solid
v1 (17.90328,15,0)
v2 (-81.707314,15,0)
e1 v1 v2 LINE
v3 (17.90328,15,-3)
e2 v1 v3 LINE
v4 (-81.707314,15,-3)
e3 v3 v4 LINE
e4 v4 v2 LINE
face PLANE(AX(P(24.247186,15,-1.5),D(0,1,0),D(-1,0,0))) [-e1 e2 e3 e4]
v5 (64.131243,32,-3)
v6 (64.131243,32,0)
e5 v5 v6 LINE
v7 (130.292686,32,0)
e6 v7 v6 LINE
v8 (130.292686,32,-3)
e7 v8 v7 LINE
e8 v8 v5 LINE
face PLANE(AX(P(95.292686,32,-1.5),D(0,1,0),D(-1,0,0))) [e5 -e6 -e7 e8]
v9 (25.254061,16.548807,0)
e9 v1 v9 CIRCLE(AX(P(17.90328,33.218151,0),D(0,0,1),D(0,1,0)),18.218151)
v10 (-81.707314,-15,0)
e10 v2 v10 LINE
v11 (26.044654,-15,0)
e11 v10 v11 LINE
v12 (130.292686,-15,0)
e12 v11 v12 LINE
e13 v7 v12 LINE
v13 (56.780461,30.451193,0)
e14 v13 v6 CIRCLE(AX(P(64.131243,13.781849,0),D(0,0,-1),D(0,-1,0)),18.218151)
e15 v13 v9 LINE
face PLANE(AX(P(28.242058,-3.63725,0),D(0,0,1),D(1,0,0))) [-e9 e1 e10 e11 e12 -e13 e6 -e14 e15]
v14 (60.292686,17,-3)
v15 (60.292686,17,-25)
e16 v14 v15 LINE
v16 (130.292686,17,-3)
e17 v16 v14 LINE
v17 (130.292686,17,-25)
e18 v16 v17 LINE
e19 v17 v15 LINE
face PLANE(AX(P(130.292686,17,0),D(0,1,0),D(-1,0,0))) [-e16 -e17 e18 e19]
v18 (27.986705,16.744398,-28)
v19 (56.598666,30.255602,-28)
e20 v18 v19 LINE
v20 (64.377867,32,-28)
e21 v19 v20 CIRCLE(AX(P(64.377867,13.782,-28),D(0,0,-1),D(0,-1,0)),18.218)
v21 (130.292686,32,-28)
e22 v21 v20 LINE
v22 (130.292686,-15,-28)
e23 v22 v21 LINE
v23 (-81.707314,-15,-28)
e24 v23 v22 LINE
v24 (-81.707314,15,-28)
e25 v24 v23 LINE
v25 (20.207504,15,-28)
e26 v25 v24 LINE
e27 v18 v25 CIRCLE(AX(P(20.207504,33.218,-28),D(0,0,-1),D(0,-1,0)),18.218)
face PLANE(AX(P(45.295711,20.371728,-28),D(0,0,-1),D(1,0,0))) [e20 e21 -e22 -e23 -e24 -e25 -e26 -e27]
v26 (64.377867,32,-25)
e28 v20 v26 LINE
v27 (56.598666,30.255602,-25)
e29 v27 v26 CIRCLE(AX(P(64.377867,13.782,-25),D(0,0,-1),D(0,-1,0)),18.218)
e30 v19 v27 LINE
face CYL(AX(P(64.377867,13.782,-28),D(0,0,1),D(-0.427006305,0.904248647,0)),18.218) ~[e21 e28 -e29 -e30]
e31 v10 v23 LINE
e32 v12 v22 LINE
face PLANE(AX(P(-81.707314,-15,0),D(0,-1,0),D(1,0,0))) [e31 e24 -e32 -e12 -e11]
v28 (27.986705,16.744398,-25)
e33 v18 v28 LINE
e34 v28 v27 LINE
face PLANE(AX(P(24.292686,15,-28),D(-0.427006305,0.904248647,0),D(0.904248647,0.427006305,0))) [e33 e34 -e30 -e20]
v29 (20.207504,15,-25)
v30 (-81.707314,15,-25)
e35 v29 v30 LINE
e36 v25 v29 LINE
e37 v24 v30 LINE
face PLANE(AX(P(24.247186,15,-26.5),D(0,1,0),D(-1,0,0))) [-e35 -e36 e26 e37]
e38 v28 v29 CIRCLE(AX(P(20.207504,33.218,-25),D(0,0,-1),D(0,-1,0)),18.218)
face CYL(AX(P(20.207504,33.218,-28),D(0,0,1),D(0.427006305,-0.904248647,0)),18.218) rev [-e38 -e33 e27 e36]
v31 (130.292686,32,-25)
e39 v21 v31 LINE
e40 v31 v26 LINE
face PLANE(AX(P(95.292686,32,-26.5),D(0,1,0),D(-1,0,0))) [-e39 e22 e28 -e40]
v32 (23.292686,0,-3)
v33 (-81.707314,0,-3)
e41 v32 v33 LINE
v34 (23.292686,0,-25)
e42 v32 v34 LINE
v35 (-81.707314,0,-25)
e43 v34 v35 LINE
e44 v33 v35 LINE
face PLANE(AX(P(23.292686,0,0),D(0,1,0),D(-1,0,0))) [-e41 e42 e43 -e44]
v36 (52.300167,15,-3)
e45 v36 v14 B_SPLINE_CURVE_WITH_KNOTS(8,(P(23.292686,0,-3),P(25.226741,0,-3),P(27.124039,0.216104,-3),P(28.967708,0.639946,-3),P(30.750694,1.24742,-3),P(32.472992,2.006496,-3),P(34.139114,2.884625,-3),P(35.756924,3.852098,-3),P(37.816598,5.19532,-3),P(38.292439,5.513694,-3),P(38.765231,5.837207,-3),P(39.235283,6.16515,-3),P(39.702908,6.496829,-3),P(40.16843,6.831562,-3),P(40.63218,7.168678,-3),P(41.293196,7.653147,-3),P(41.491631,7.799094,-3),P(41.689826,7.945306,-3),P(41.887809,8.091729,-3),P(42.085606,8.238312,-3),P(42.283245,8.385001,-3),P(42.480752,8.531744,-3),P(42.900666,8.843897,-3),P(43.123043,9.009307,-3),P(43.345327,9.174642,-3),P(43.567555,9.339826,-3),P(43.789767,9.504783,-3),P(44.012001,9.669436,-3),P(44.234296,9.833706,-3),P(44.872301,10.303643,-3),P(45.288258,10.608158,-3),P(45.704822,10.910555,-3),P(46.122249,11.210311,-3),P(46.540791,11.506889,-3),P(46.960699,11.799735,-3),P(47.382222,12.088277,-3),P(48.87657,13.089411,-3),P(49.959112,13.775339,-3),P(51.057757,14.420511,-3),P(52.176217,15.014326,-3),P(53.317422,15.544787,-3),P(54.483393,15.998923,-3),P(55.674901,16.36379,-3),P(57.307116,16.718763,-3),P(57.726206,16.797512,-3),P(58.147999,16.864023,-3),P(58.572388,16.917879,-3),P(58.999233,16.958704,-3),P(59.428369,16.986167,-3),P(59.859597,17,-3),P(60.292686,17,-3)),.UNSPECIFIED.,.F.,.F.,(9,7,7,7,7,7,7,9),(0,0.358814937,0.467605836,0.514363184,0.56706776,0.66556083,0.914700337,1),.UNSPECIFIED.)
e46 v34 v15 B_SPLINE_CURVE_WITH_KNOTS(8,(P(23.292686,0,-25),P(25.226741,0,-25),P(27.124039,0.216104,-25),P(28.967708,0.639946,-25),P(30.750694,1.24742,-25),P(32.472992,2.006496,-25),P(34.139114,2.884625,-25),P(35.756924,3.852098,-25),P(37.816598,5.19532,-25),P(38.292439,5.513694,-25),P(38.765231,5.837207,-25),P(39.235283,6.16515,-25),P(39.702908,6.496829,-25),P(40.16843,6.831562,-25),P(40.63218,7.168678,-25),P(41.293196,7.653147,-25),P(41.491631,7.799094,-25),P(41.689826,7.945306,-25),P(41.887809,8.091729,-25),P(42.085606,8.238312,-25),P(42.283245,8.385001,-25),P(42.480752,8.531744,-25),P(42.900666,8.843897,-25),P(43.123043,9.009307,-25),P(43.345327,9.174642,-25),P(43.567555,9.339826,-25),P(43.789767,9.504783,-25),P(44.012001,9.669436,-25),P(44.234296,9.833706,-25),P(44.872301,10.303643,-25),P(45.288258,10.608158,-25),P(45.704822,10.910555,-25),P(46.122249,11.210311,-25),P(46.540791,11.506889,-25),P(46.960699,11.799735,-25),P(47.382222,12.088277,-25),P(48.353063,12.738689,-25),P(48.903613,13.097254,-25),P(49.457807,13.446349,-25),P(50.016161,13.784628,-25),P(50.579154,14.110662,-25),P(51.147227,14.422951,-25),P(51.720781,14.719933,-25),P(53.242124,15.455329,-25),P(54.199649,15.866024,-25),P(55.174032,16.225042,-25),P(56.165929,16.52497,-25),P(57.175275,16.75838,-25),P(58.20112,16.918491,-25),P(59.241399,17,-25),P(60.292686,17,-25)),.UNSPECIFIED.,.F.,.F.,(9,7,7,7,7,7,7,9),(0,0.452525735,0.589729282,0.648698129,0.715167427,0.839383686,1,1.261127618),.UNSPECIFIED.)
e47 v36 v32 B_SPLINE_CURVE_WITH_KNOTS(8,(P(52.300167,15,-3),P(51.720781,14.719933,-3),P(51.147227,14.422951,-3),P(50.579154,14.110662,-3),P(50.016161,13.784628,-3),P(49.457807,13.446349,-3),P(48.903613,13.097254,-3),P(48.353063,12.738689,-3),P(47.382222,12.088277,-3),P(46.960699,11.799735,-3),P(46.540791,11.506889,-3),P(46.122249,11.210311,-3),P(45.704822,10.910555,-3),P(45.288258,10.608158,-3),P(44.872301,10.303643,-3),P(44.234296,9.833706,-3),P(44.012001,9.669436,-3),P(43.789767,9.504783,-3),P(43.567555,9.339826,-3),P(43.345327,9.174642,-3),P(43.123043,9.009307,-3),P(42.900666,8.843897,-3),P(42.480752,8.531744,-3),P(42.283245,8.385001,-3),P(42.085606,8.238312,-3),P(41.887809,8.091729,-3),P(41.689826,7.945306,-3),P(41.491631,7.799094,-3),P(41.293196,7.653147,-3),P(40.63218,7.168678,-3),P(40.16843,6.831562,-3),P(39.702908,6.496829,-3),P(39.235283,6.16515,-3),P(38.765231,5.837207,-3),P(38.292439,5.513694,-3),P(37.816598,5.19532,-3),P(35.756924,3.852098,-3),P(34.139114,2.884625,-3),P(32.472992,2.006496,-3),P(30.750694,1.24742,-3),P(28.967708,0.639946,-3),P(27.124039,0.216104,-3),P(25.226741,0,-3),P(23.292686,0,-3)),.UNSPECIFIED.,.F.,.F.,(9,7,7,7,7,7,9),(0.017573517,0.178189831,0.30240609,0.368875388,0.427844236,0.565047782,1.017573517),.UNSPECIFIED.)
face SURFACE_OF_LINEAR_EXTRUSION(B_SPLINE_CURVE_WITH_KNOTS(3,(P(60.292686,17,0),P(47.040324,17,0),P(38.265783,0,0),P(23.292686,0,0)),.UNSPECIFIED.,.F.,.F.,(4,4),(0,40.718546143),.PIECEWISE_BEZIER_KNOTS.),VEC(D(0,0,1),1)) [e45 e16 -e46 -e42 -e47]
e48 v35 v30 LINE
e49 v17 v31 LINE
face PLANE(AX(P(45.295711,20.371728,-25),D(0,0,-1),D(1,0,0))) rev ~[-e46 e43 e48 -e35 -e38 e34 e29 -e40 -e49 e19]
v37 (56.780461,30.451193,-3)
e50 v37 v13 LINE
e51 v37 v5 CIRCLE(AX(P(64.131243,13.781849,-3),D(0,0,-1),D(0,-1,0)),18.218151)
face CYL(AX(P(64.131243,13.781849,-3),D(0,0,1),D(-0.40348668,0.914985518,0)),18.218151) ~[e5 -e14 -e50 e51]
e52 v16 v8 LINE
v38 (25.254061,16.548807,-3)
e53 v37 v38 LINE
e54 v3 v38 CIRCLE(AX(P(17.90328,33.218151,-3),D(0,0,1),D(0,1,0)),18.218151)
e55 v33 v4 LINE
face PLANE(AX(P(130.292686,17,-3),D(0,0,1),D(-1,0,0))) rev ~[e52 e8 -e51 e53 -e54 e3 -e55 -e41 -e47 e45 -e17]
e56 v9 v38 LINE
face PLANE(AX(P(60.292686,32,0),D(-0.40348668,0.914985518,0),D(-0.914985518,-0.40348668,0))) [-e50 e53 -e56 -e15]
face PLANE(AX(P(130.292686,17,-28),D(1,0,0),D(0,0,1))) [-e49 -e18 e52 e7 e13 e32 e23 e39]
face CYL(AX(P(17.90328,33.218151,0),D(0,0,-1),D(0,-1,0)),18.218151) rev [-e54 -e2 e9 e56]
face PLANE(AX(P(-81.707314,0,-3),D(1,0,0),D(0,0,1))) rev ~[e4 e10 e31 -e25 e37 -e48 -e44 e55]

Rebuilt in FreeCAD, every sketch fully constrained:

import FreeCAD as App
import Part
import Sketcher
from FreeCAD import Vector


def edges_at(feature, points):
    """Names of the edges that pass closest to the given points."""
    edges = feature.Shape.Edges
    near = lambda p: min(range(len(edges)), key=lambda i: edges[i].distToShape(Part.Vertex(*p))[0])
    return sorted({f"Edge{near(p) + 1}" for p in points})

doc = App.newDocument("Part")
body = doc.addObject("PartDesign::Body", "Body")

sketch1 = body.newObject("Sketcher::SketchObject", "Sketch")
sketch1.AttachmentSupport = (doc.getObject("XY_Plane"), [""])
sketch1.MapMode = "FlatFace"
sketch1.addGeometry([
    Part.LineSegment(Vector(23.292686, 0, 0), Vector(-81.707314, 0, 0)),
    Part.LineSegment(Vector(-81.707314, 0, 0), Vector(-81.707314, -15, 0)),
    Part.LineSegment(Vector(-81.707314, -15, 0), Vector(130.292686, -15, 0)),
    Part.LineSegment(Vector(130.292686, -15, 0), Vector(130.292686, 17, 0)),
    Part.LineSegment(Vector(130.292686, 17, 0), Vector(60.292686, 17, 0)),
    Part.BSplineCurve([Vector(60.292686, 17, 0), Vector(47.040324, 17, 0), Vector(38.265783, 0, 0), Vector(23.292686, 0, 0)], [4, 4], [0, 40.718546143], False, 3, [1, 1, 1, 1], False),
], False)
sketch1.addConstraint([
    Sketcher.Constraint("Block", 5),
    Sketcher.Constraint("Coincident", 0, 2, 1, 1),
    Sketcher.Constraint("Coincident", 1, 2, 2, 1),
    Sketcher.Constraint("Coincident", 2, 2, 3, 1),
    Sketcher.Constraint("Coincident", 3, 2, 4, 1),
    Sketcher.Constraint("Coincident", 4, 2, 5, 1),
    Sketcher.Constraint("Coincident", 5, 2, 0, 1),
    Sketcher.Constraint("Horizontal", 0),
    Sketcher.Constraint("Vertical", 1),
    Sketcher.Constraint("Horizontal", 2),
    Sketcher.Constraint("Vertical", 3),
    Sketcher.Constraint("Horizontal", 4),
    Sketcher.Constraint("DistanceX", 0, 2, 0, 1, 105.0),
    Sketcher.Constraint("DistanceX", 2, 1, 2, 2, 212.0),
    Sketcher.Constraint("DistanceY", 1, 2, 1, 1, 15.0),
])
pad1 = body.newObject("PartDesign::Pad", "Pad")
pad1.Profile = sketch1
pad1.Length = 28
pad1.Reversed = True

sketch2 = body.newObject("Sketcher::SketchObject", "Sketch001")
sketch2.AttachmentSupport = (doc.getObject("XZ_Plane"), [""])
sketch2.MapMode = "FlatFace"
sketch2.addGeometry([
    Part.LineSegment(Vector(130.2, 0, 0), Vector(130.2, -3, 0)),
    Part.LineSegment(Vector(130.2, -3, 0), Vector(-81.7, -3, 0)),
    Part.LineSegment(Vector(-81.7, -3, 0), Vector(-81.7, 0, 0)),
    Part.LineSegment(Vector(-81.7, 0, 0), Vector(130.2, 0, 0)),
    Part.LineSegment(Vector(130.2, -25, 0), Vector(130.2, -28, 0)),
    Part.LineSegment(Vector(130.2, -28, 0), Vector(-81.7, -28, 0)),
    Part.LineSegment(Vector(-81.7, -28, 0), Vector(-81.7, -25, 0)),
    Part.LineSegment(Vector(-81.7, -25, 0), Vector(130.2, -25, 0)),
], False)
sketch2.addConstraint([
    Sketcher.Constraint("Coincident", 0, 2, 1, 1),
    Sketcher.Constraint("Coincident", 1, 2, 2, 1),
    Sketcher.Constraint("Coincident", 2, 2, 3, 1),
    Sketcher.Constraint("Coincident", 3, 2, 0, 1),
    Sketcher.Constraint("Coincident", 4, 2, 5, 1),
    Sketcher.Constraint("Coincident", 5, 2, 6, 1),
    Sketcher.Constraint("Coincident", 6, 2, 7, 1),
    Sketcher.Constraint("Coincident", 7, 2, 4, 1),
    Sketcher.Constraint("Vertical", 0),
    Sketcher.Constraint("Horizontal", 1),
    Sketcher.Constraint("Vertical", 2),
    Sketcher.Constraint("Horizontal", 3),
    Sketcher.Constraint("Vertical", 4),
    Sketcher.Constraint("Horizontal", 5),
    Sketcher.Constraint("Vertical", 6),
    Sketcher.Constraint("Horizontal", 7),
    Sketcher.Constraint("PointOnObject", 2, 2, -1),
    Sketcher.Constraint("Vertical", 3, 2, 4, 2),
    Sketcher.Constraint("Vertical", 2, 2, 5, 2),
    Sketcher.Constraint("Equal", 2, 4),
    Sketcher.Constraint("DistanceY", 0, 2, 0, 1, 3.0),
    Sketcher.Constraint("DistanceY", 4, 2, -1, 1, 28.0),
    Sketcher.Constraint("DistanceX", 1, 2, 1, 1, 211.909),
    Sketcher.Constraint("DistanceX", -1, 1, 0, 2, 130.201686),
])
pad2 = body.newObject("PartDesign::Pad", "Pad001")
pad2.Profile = sketch2
pad2.Length = 15
pad2.Reversed = True

sketch3 = body.newObject("Sketcher::SketchObject", "Sketch002")
sketch3.AttachmentSupport = (doc.getObject("XZ_Plane"), [""])
sketch3.MapMode = "FlatFace"
sketch3.AttachmentOffset = App.Placement(Vector(0, 0, -17), App.Rotation())
sketch3.addGeometry([
    Part.LineSegment(Vector(130.3, -25, 0), Vector(130.3, -28, 0)),
    Part.LineSegment(Vector(130.3, -28, 0), Vector(60.3, -28, 0)),
    Part.LineSegment(Vector(60.3, -28, 0), Vector(60.3, -25, 0)),
    Part.LineSegment(Vector(60.3, -25, 0), Vector(130.3, -25, 0)),
    Part.LineSegment(Vector(130.3, 0, 0), Vector(130.3, -3, 0)),
    Part.LineSegment(Vector(130.3, -3, 0), Vector(60.3, -3, 0)),
    Part.LineSegment(Vector(60.3, -3, 0), Vector(60.3, 0, 0)),
    Part.LineSegment(Vector(60.3, 0, 0), Vector(130.3, 0, 0)),
], False)
sketch3.addConstraint([
    Sketcher.Constraint("Coincident", 0, 2, 1, 1),
    Sketcher.Constraint("Coincident", 1, 2, 2, 1),
    Sketcher.Constraint("Coincident", 2, 2, 3, 1),
    Sketcher.Constraint("Coincident", 3, 2, 0, 1),
    Sketcher.Constraint("Coincident", 4, 2, 5, 1),
    Sketcher.Constraint("Coincident", 5, 2, 6, 1),
    Sketcher.Constraint("Coincident", 6, 2, 7, 1),
    Sketcher.Constraint("Coincident", 7, 2, 4, 1),
    Sketcher.Constraint("Vertical", 0),
    Sketcher.Constraint("Horizontal", 1),
    Sketcher.Constraint("Vertical", 2),
    Sketcher.Constraint("Horizontal", 3),
    Sketcher.Constraint("Vertical", 4),
    Sketcher.Constraint("Horizontal", 5),
    Sketcher.Constraint("Vertical", 6),
    Sketcher.Constraint("Horizontal", 7),
    Sketcher.Constraint("PointOnObject", 6, 2, -1),
    Sketcher.Constraint("Vertical", 3, 2, 4, 2),
    Sketcher.Constraint("Vertical", 2, 2, 5, 2),
    Sketcher.Constraint("Equal", 2, 4),
    Sketcher.Constraint("DistanceX", 1, 2, 1, 1, 70.0),
    Sketcher.Constraint("DistanceY", 0, 2, 0, 1, 3.0),
    Sketcher.Constraint("DistanceY", 0, 2, -1, 1, 28.0),
    Sketcher.Constraint("DistanceX", -1, 1, 0, 2, 130.292686),
])
pad3 = body.newObject("PartDesign::Pad", "Pad002")
pad3.Profile = sketch3
pad3.Length = 15
pad3.Reversed = True

sketch4 = body.newObject("Sketcher::SketchObject", "Sketch003")
sketch4.AttachmentSupport = (doc.getObject("XY_Plane"), [""])
sketch4.MapMode = "FlatFace"
sketch4.addGeometry([
    Part.LineSegment(Vector(65, 0, 0), Vector(60, 32, 0)),
    Part.LineSegment(Vector(60, 32, 0), Vector(22, 15, 0)),
    Part.LineSegment(Vector(22, 15, 0), Vector(26, -15, 0)),
    Part.LineSegment(Vector(26, -15, 0), Vector(65, 0, 0)),
], False)
sketch4.addConstraint([
    Sketcher.Constraint("Coincident", 0, 2, 1, 1),
    Sketcher.Constraint("Coincident", 1, 2, 2, 1),
    Sketcher.Constraint("Coincident", 2, 2, 3, 1),
    Sketcher.Constraint("Coincident", 3, 2, 0, 1),
    Sketcher.Constraint("PointOnObject", 3, 2, -1),
    Sketcher.Constraint("DistanceY", -1, 1, 0, 2, 32.0),
    Sketcher.Constraint("DistanceY", -1, 1, 1, 2, 15.0),
    Sketcher.Constraint("DistanceY", 2, 2, -1, 1, 15.0),
    Sketcher.Constraint("Distance", 2, 30.307),
    Sketcher.Constraint("Distance", 1, 42.132742),
    Sketcher.Constraint("DistanceX", 0, 2, 3, 2, 4.497831),
    Sketcher.Constraint("DistanceX", -1, 1, 0, 2, 60.292686),
])
pad4 = body.newObject("PartDesign::Pad", "Pad003")
pad4.Profile = sketch4
pad4.Length = 3
pad4.Reversed = True
doc.recompute()

fillet = body.newObject("PartDesign::Fillet", "Fillet")
fillet.Base = (pad4, edges_at(pad4, [(60.293, 32, -1.5), (21.742, 15, -1.5)]))
fillet.Radius = 18.218151

sketch5 = body.newObject("Sketcher::SketchObject", "Sketch004")
sketch5.AttachmentSupport = (doc.getObject("XY_Plane"), [""])
sketch5.MapMode = "FlatFace"
sketch5.AttachmentOffset = App.Placement(Vector(0, 0, -28), App.Rotation())
sketch5.addGeometry([
    Part.LineSegment(Vector(24, 15, 0), Vector(60, 32, 0)),
    Part.LineSegment(Vector(60, 32, 0), Vector(60, 17, 0)),
    Part.LineSegment(Vector(60, 17, 0), Vector(52, 15, 0)),
    Part.LineSegment(Vector(52, 15, 0), Vector(24, 15, 0)),
], False)
sketch5.addConstraint([
    Sketcher.Constraint("Coincident", 0, 2, 1, 1),
    Sketcher.Constraint("Coincident", 1, 2, 2, 1),
    Sketcher.Constraint("Coincident", 2, 2, 3, 1),
    Sketcher.Constraint("Coincident", 3, 2, 0, 1),
    Sketcher.Constraint("Vertical", 1),
    Sketcher.Constraint("Horizontal", 3),
    Sketcher.Constraint("DistanceY", 1, 2, 1, 1, 15.0),
    Sketcher.Constraint("DistanceY", -1, 1, 0, 2, 32.0),
    Sketcher.Constraint("DistanceY", -1, 1, 2, 2, 15.0),
    Sketcher.Constraint("DistanceX", 3, 2, 1, 2, 36.0),
    Sketcher.Constraint("DistanceX", 3, 2, 3, 1, 28.007481),
    Sketcher.Constraint("DistanceX", -1, 1, 0, 2, 60.292686),
])
pad5 = body.newObject("PartDesign::Pad", "Pad004")
pad5.Profile = sketch5
pad5.Length = 3
doc.recompute()

fillet2 = body.newObject("PartDesign::Fillet", "Fillet001")
fillet2.Base = (pad5, edges_at(pad5, [(60.293, 32, -26.5), (24.293, 15, -26.5)]))
fillet2.Radius = 18.218

doc.recompute()
